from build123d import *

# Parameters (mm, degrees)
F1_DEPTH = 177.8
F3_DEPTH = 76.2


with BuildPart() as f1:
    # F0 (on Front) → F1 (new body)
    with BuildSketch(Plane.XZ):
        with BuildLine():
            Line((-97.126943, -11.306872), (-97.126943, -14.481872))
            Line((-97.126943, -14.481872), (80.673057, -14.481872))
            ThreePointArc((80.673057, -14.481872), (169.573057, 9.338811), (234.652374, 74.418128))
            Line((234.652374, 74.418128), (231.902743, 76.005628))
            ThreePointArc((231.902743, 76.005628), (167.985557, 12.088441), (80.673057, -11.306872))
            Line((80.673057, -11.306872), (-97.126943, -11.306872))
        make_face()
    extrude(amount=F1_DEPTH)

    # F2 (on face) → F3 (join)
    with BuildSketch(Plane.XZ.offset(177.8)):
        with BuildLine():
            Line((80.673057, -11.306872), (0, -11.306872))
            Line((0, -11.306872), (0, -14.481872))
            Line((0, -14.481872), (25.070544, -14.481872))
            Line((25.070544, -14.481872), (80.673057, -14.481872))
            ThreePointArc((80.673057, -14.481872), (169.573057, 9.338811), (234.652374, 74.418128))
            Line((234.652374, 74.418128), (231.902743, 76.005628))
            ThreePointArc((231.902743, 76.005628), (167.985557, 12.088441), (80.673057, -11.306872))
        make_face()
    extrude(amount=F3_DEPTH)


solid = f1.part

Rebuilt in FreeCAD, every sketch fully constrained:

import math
import FreeCAD as App
import Part
import Sketcher
Q = App.Units.Quantity

doc = App.newDocument("Part")
body = doc.addObject("PartDesign::Body", "Body")

sketch1 = doc.addObject("Sketcher::SketchObject", "Sketch")
body.addObject(sketch1)
sketch1.AttachmentSupport = (doc.XZ_Plane, [""])
sketch1.MapMode = "FlatFace"
sketch1.addGeometry(Part.LineSegment(App.Vector(-97.126943, -11.306872, 0), App.Vector(-97.126943, -14.481872, 0)), False)
sketch1.addGeometry(Part.LineSegment(App.Vector(-97.126943, -14.481872, 0), App.Vector(80.673057, -14.481872, 0)), False)
sketch1.addGeometry(Part.ArcOfCircle(Part.Circle(App.Vector(80.673057, 163.318128, 0), App.Vector(0, 0, 1), 177.8), math.radians(-90), math.radians(-30)), False)
sketch1.addGeometry(Part.LineSegment(App.Vector(234.652374, 74.418128, 0), App.Vector(231.902743, 76.005628, 0)), False)
sketch1.addGeometry(Part.ArcOfCircle(Part.Circle(App.Vector(80.67306, 163.318123, 0), App.Vector(0, 0, 1), 174.624995), math.radians(-90.000001), math.radians(-29.999999)), False)
sketch1.addGeometry(Part.LineSegment(App.Vector(80.673057, -11.306872, 0), App.Vector(-97.126943, -11.306872, 0)), False)
sketch1.addConstraint(Sketcher.Constraint("Coincident", 0, 2, 1, 1))
sketch1.addConstraint(Sketcher.Constraint("Tangent", 1, 2, 2, 1))
sketch1.addConstraint(Sketcher.Constraint("Coincident", 2, 2, 3, 1))
sketch1.addConstraint(Sketcher.Constraint("Coincident", 3, 2, 4, 2))
sketch1.addConstraint(Sketcher.Constraint("Tangent", 4, 1, 5, 1))
sketch1.addConstraint(Sketcher.Constraint("Coincident", 5, 2, 0, 1))
sketch1.addConstraint(Sketcher.Constraint("Vertical", 0))
sketch1.addConstraint(Sketcher.Constraint("Horizontal", 1))
sketch1.addConstraint(Sketcher.Constraint("Horizontal", 5))
sketch1.addConstraint(Sketcher.Constraint("Coincident", 4, 3, 2, 3))
sketch1.addConstraint(Sketcher.Constraint("Radius", 2, Q("7 in")))
sketch1.addConstraint(Sketcher.Constraint("DistanceX", 1, 1, 1, 2, Q("7 in")))
sketch1.addConstraint(Sketcher.Constraint("Angle", 3, Q("150.000003 deg")))
sketch1.addConstraint(Sketcher.Constraint("DistanceY", 2, 2, 2, 3, Q("3.5 in")))
sketch1.addConstraint(Sketcher.Constraint("DistanceY", 0, 2, 0, 1, Q("0.125 in")))
sketch1.addConstraint(Sketcher.Constraint("DistanceX", -1, 1, 4, 3, Q("80.67306 mm")))
sketch1.addConstraint(Sketcher.Constraint("DistanceY", 0, 2, -1, 1, Q("14.481872 mm")))
pad1 = doc.addObject("PartDesign::Pad", "Pad")
body.addObject(pad1)
pad1.Profile = sketch1
pad1.Length = Q("7 in")

sketch2 = doc.addObject("Sketcher::SketchObject", "Sketch001")
body.addObject(sketch2)
sketch2.AttachmentSupport = (doc.XZ_Plane, [""])
sketch2.MapMode = "FlatFace"
sketch2.AttachmentOffset = App.Placement(App.Vector(0, 0, 7 * 25.4), App.Rotation())
sketch2.addGeometry(Part.LineSegment(App.Vector(80.673057, -11.306872, 0), App.Vector(0, -11.306872, 0)), False)
sketch2.addGeometry(Part.LineSegment(App.Vector(0, -11.306872, 0), App.Vector(0, -14.481872, 0)), False)
sketch2.addGeometry(Part.LineSegment(App.Vector(0, -14.481872, 0), App.Vector(80.673057, -14.481872, 0)), False)
sketch2.addGeometry(Part.ArcOfCircle(Part.Circle(App.Vector(80.673057, 163.318128, 0), App.Vector(0, 0, 1), 177.8), math.radians(-90), math.radians(-30)), False)
sketch2.addGeometry(Part.LineSegment(App.Vector(234.652374, 74.418128, 0), App.Vector(231.902743, 76.005628, 0)), False)
sketch2.addGeometry(Part.ArcOfCircle(Part.Circle(App.Vector(80.67306, 163.318123, 0), App.Vector(0, 0, 1), 174.624995), math.radians(-90.000001), math.radians(-29.999999)), False)
sketch2.addConstraint(Sketcher.Constraint("Coincident", 0, 2, 1, 1))
sketch2.addConstraint(Sketcher.Constraint("Coincident", 1, 2, 2, 1))
sketch2.addConstraint(Sketcher.Constraint("Tangent", 2, 2, 3, 1))
sketch2.addConstraint(Sketcher.Constraint("Coincident", 3, 2, 4, 1))
sketch2.addConstraint(Sketcher.Constraint("Coincident", 4, 2, 5, 2))
sketch2.addConstraint(Sketcher.Constraint("Tangent", 5, 1, 0, 1))
sketch2.addConstraint(Sketcher.Constraint("Horizontal", 0))
sketch2.addConstraint(Sketcher.Constraint("Vertical", 1))
sketch2.addConstraint(Sketcher.Constraint("Horizontal", 2))
sketch2.addConstraint(Sketcher.Constraint("Coincident", 5, 3, 3, 3))
sketch2.addConstraint(Sketcher.Constraint("PointOnObject", 0, 2, -2))
sketch2.addConstraint(Sketcher.Constraint("Radius", 3, Q("7 in")))
sketch2.addConstraint(Sketcher.Constraint("Angle", 4, Q("150.000003 deg")))
sketch2.addConstraint(Sketcher.Constraint("DistanceY", 3, 2, 3, 3, Q("3.5 in")))
sketch2.addConstraint(Sketcher.Constraint("DistanceY", 1, 2, 1, 1, Q("0.125 in")))
sketch2.addConstraint(Sketcher.Constraint("DistanceX", 0, 2, 0, 1, Q("80.673057 mm")))
sketch2.addConstraint(Sketcher.Constraint("DistanceY", 1, 2, -1, 1, Q("14.481872 mm")))
pad2 = doc.addObject("PartDesign::Pad", "Pad001")
body.addObject(pad2)
pad2.Profile = sketch2
pad2.Length = Q("3 in")

doc.recompute()
